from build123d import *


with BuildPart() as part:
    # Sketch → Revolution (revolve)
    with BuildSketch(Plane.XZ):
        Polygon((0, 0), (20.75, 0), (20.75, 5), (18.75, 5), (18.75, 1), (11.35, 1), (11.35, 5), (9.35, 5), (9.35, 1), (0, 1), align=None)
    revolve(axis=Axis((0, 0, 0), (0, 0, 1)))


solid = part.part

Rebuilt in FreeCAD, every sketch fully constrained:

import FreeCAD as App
import Part
import Sketcher
from FreeCAD import Vector
Q = App.Units.Quantity


def add_polygon(sketch, points):
    """Adds a closed chain of lines whose ends are joined by coincident constraints."""
    first, n = sketch.GeometryCount, len(points)
    for a, b in zip(points, points[1:] + points[:1]):
        sketch.addGeometry(Part.LineSegment(App.Vector(*a, 0), App.Vector(*b, 0)), False)
    for i in range(n):
        sketch.addConstraint(Sketcher.Constraint("Coincident", first + i, 2, first + (i + 1) % n, 1))

doc = App.newDocument("Part")
body = doc.addObject("PartDesign::Body", "Body")

# Sketch on XZ plane
sketch1 = body.newObject("Sketcher::SketchObject", "Sketch")
sketch1.AttachmentSupport = (doc.getObject("XZ_Plane"), [""])
sketch1.MapMode = "FlatFace"
add_polygon(sketch1, [(0, 0), (20.8, 0), (20.8, 5), (18.8, 5), (18.8, 1), (11.3, 1), (11.3, 5), (9.3, 5), (9.3, 1), (0, 1)])  # lines 0-9
sketch1.addConstraint(Sketcher.Constraint("Horizontal", 0))
sketch1.addConstraint(Sketcher.Constraint("Vertical", 1))
sketch1.addConstraint(Sketcher.Constraint("Horizontal", 2))
sketch1.addConstraint(Sketcher.Constraint("Vertical", 3))
sketch1.addConstraint(Sketcher.Constraint("Horizontal", 4))
sketch1.addConstraint(Sketcher.Constraint("Vertical", 5))
sketch1.addConstraint(Sketcher.Constraint("Horizontal", 6))
sketch1.addConstraint(Sketcher.Constraint("Vertical", 7))
sketch1.addConstraint(Sketcher.Constraint("Horizontal", 8))
sketch1.addConstraint(Sketcher.Constraint("Vertical", 9))
sketch1.addConstraint(Sketcher.Constraint("Coincident", 9, 2, -1, 1))
sketch1.addConstraint(Sketcher.Constraint("Horizontal", 2, 2, 5, 2))
sketch1.addConstraint(Sketcher.Constraint("Horizontal", 4, 2, 7, 2))
sketch1.addConstraint(Sketcher.Constraint("Equal", 2, 6))
sketch1.addConstraint(Sketcher.Constraint("DistanceX", 2, 2, 2, 1, Q("2 mm")))
sketch1.addConstraint(Sketcher.Constraint("DistanceY", 1, 1, 1, 2, Q("5 mm")))
sketch1.addConstraint(Sketcher.Constraint("DistanceY", 3, 2, 3, 1, Q("4 mm")))
sketch1.addConstraint(Sketcher.Constraint("DistanceX", 4, 2, 4, 1, Q("7.4 mm")))
sketch1.addConstraint(Sketcher.Constraint("DistanceX", 0, 1, 0, 2, Q("20.75 mm")))
revolution = body.newObject("PartDesign::Revolution", "Revolution")
revolution.Profile = sketch1
revolution.ReferenceAxis = (sketch1, ["V_Axis"])
revolution.Angle = 360

doc.recompute()
